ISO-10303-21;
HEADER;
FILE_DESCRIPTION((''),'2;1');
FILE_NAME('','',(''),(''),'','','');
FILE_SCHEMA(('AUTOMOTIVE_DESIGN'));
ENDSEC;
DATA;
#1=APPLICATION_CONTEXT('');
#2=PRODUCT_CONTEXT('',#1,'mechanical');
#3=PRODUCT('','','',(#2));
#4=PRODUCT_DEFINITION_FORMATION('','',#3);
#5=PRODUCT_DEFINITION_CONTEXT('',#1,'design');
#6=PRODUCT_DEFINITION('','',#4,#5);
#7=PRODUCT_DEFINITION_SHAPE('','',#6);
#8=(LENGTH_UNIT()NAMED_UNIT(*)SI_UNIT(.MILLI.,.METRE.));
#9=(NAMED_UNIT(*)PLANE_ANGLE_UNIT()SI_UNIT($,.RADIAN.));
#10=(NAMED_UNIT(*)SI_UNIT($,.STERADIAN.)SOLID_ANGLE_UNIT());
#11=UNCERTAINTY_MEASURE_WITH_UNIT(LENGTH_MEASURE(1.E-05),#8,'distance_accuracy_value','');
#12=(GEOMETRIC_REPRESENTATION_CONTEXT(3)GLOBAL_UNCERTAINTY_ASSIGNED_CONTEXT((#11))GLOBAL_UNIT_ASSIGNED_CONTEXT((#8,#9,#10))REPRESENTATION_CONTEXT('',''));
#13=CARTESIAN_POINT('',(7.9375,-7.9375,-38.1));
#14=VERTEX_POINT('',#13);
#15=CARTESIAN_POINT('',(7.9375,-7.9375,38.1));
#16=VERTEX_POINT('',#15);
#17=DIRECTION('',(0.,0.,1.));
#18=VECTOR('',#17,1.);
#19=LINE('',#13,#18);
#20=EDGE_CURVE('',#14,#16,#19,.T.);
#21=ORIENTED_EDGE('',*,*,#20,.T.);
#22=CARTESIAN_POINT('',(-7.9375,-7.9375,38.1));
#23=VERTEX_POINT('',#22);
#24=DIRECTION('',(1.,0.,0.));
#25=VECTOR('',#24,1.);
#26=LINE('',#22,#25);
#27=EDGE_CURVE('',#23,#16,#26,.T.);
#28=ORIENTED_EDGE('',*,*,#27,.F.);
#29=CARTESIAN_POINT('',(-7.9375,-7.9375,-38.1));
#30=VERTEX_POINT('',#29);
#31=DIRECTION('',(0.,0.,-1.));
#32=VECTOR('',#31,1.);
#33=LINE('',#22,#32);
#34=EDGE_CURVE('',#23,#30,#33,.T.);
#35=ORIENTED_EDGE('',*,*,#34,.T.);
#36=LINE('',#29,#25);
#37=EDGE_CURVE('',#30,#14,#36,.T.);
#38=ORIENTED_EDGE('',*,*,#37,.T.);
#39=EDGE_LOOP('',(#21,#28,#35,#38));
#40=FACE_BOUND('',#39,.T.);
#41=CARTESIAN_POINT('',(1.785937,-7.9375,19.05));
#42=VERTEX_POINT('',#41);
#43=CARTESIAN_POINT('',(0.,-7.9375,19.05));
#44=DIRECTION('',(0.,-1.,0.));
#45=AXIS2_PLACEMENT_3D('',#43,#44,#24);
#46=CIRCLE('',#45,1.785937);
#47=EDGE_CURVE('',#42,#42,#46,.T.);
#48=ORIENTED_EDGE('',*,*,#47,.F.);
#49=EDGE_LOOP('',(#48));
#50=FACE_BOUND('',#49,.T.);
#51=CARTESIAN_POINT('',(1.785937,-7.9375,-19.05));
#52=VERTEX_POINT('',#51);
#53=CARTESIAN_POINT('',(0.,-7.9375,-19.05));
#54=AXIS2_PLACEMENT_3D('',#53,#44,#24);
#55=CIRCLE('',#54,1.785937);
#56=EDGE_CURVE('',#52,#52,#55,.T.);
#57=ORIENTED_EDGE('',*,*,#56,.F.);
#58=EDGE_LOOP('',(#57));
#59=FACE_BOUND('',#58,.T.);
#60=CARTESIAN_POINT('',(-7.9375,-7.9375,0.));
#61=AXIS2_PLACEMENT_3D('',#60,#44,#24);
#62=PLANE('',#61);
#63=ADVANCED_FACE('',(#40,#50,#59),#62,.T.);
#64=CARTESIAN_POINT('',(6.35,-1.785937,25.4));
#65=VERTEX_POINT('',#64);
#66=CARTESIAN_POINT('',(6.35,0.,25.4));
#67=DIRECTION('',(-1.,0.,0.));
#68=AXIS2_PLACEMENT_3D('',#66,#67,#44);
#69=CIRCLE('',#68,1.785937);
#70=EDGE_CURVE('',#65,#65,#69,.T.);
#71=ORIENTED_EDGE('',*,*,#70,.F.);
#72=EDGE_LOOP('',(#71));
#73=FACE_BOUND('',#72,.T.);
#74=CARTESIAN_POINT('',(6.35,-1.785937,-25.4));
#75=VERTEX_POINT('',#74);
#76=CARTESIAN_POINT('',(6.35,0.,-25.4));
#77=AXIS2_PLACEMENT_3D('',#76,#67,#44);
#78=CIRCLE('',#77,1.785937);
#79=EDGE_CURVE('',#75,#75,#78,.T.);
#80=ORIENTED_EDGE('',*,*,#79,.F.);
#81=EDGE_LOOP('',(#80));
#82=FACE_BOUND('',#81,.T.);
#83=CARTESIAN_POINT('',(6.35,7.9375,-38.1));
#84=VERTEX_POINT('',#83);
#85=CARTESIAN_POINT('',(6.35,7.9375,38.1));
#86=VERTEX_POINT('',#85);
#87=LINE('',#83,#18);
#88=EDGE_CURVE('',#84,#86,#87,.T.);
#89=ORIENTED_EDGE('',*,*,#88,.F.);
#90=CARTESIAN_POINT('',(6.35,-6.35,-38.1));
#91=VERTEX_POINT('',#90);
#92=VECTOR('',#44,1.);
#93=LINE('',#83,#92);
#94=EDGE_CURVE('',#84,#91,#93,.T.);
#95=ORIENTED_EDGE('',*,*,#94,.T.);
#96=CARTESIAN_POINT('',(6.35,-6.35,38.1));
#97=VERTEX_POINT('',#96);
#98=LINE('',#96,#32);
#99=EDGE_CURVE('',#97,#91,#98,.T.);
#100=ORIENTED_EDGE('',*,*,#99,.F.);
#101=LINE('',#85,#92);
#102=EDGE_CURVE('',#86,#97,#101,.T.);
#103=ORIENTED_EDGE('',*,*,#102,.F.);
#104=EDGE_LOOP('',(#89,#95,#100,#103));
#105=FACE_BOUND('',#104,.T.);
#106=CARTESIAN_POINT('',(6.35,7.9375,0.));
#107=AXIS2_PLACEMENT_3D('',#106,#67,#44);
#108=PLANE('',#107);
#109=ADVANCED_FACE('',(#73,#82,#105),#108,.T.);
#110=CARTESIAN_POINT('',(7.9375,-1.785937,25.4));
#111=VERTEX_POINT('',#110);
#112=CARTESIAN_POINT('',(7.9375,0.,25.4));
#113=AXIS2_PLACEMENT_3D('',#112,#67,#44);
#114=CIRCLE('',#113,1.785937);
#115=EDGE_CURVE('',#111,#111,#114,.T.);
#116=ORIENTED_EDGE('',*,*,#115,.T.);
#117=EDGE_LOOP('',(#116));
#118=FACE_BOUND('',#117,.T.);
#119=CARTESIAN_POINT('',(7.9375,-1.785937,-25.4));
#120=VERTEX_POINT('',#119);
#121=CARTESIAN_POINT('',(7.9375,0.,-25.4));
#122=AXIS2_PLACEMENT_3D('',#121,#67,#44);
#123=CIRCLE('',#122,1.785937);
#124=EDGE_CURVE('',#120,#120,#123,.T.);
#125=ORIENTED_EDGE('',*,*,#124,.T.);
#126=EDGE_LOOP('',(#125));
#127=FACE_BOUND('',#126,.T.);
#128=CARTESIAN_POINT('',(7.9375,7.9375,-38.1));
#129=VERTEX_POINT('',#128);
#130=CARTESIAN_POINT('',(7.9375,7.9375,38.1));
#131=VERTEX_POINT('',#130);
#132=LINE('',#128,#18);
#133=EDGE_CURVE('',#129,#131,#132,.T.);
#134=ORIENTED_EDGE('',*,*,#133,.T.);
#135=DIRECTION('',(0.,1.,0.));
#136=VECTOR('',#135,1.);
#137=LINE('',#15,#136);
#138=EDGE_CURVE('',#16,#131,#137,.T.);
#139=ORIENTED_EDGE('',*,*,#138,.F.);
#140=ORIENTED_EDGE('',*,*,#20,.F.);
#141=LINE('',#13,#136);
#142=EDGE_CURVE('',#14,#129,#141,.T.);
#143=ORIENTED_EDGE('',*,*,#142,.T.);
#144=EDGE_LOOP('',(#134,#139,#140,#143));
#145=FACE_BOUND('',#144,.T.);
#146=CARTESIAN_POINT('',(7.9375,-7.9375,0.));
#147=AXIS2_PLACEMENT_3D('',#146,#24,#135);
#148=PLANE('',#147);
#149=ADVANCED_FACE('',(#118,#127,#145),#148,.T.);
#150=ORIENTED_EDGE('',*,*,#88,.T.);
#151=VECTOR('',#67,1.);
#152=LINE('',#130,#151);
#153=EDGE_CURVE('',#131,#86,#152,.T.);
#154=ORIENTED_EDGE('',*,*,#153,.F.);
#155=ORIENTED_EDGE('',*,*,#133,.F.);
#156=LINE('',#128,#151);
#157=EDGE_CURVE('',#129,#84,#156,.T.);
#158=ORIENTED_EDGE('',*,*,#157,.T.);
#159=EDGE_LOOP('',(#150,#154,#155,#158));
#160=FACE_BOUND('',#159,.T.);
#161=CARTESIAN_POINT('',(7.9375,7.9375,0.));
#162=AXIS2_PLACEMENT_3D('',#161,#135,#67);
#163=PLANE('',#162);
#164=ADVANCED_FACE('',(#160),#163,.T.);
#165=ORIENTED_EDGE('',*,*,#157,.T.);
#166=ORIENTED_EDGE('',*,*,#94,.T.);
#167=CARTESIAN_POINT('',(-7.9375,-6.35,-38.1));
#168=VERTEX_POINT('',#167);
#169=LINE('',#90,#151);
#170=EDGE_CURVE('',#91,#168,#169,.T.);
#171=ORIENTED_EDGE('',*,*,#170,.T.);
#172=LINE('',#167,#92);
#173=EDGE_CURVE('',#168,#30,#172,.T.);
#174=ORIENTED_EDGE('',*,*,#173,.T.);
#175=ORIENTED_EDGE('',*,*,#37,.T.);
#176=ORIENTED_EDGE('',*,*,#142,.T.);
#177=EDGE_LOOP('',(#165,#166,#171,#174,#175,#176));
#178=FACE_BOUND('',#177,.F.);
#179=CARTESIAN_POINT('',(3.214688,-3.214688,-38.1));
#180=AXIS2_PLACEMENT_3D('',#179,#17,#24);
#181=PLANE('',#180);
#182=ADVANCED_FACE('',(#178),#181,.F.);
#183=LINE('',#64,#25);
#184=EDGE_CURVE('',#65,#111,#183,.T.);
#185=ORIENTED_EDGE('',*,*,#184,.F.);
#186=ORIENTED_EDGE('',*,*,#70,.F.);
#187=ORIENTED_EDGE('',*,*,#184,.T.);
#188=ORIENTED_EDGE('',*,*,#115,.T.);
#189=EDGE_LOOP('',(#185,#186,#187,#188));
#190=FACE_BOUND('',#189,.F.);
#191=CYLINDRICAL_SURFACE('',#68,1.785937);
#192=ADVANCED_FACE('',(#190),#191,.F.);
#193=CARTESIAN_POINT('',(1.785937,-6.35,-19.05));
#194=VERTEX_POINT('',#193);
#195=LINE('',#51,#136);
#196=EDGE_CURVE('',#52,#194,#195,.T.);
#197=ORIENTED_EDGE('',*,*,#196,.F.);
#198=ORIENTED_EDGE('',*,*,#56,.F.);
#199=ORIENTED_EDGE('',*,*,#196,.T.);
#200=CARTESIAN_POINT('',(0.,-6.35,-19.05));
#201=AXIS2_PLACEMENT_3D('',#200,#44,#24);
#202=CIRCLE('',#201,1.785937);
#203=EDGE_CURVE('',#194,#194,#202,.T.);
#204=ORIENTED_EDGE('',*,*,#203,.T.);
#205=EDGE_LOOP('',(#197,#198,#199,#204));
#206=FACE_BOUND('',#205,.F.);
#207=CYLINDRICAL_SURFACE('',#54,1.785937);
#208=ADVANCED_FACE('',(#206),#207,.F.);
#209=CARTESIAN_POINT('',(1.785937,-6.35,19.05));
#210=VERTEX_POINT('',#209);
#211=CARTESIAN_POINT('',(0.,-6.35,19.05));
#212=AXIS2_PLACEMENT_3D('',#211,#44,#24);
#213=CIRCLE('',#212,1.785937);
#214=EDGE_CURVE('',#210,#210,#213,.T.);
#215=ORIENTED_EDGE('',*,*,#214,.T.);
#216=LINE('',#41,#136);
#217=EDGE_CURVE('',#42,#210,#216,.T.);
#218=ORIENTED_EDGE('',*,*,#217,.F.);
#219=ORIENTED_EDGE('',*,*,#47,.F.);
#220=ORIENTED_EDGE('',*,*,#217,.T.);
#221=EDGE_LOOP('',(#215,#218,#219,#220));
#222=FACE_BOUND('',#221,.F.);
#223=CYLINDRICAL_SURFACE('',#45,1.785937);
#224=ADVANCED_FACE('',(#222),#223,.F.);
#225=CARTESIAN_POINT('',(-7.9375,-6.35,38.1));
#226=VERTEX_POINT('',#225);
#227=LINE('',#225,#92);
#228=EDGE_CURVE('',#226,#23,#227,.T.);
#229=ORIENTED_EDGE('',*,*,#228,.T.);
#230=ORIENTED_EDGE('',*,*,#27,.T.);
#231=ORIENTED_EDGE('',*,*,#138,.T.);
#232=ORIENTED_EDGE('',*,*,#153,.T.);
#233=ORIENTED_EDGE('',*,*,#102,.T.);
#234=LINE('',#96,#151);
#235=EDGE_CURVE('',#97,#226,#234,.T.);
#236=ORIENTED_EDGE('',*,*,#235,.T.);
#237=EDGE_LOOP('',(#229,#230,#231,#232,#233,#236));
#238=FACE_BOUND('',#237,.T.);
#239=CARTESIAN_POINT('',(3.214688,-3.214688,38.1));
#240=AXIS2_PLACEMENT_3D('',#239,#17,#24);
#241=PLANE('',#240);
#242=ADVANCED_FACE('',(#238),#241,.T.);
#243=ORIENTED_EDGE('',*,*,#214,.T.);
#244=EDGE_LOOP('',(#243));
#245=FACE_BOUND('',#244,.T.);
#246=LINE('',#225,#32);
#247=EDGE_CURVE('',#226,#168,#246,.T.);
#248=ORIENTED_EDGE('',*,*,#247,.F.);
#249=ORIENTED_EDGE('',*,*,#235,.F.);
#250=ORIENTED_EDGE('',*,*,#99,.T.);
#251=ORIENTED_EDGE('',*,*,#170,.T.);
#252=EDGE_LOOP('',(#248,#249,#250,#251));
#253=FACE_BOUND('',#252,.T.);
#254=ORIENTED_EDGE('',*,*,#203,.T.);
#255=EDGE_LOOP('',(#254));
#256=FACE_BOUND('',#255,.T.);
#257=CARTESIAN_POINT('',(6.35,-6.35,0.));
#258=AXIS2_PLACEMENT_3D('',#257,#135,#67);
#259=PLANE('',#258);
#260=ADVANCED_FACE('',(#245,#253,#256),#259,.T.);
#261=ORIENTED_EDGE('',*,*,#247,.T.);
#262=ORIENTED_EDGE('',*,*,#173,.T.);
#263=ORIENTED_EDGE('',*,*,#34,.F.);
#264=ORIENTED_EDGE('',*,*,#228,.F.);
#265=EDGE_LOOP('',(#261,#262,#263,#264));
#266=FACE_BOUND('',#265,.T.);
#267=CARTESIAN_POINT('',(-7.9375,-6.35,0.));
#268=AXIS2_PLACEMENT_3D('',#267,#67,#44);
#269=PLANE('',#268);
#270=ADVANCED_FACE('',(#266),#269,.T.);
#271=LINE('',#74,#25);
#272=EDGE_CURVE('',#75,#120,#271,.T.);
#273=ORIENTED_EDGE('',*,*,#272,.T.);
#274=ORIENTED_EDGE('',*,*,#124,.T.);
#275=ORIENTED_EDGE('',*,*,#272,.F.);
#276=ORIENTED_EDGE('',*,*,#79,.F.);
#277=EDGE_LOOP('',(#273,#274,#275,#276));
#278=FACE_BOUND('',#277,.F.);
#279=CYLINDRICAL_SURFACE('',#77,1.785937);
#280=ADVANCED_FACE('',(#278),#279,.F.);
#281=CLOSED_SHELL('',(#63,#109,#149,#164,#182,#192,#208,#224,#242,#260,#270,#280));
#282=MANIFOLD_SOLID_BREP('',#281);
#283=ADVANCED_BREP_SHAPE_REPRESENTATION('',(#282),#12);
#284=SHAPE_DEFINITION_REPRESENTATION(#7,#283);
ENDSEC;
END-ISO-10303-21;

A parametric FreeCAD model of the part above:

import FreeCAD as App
import Part
import Sketcher
Q = App.Units.Quantity


def add_polygon(sketch, points):
    """Adds a closed chain of lines whose ends are joined by coincident constraints."""
    first, n = sketch.GeometryCount, len(points)
    for a, b in zip(points, points[1:] + points[:1]):
        sketch.addGeometry(Part.LineSegment(App.Vector(*a, 0), App.Vector(*b, 0)), False)
    for i in range(n):
        sketch.addConstraint(Sketcher.Constraint("Coincident", first + i, 2, first + (i + 1) % n, 1))

doc = App.newDocument("Part")
body = doc.addObject("PartDesign::Body", "Body")

# Sketch on XY plane
sketch1 = body.newObject("Sketcher::SketchObject", "Sketch")
sketch1.AttachmentSupport = (doc.getObject("XY_Plane"), [""])
sketch1.MapMode = "FlatFace"
add_polygon(sketch1, [(-7.9, -7.9), (7.9, -7.9), (7.9, 7.9), (6.3, 7.9), (6.3, -6.3), (-7.9, -6.3)])  # lines 0-5
sketch1.addConstraint(Sketcher.Constraint("Horizontal", 0))
sketch1.addConstraint(Sketcher.Constraint("Vertical", 1))
sketch1.addConstraint(Sketcher.Constraint("Horizontal", 2))
sketch1.addConstraint(Sketcher.Constraint("Vertical", 3))
sketch1.addConstraint(Sketcher.Constraint("Horizontal", 4))
sketch1.addConstraint(Sketcher.Constraint("Vertical", 5))
sketch1.addConstraint(Sketcher.Constraint("Symmetric", 1, 2, 5, 2, -1, 1))
sketch1.addConstraint(Sketcher.Constraint("Equal", 0, 1))
sketch1.addConstraint(Sketcher.Constraint("Equal", 4, 3))
sketch1.addConstraint(Sketcher.Constraint("DistanceX", 0, 1, 0, 2, Q("0.625 in")))
sketch1.addConstraint(Sketcher.Constraint("DistanceX", 2, 2, 2, 1, Q("0.0625 in")))
pad1 = body.newObject("PartDesign::Pad", "Pad")
pad1.Profile = sketch1
pad1.Length = Q("3 in")
pad1.Midplane = True

# Sketch on YZ plane
sketch2 = body.newObject("Sketcher::SketchObject", "Sketch001")
sketch2.AttachmentSupport = (doc.getObject("YZ_Plane"), [""])
sketch2.MapMode = "FlatFace"
sketch2.AttachmentOffset = App.Placement(App.Vector(0, 0, 0.25 * 25.4), App.Rotation())
sketch2.addGeometry(Part.Circle(App.Vector(0, -25.4, 0), App.Vector(0, 0, 1), 1.8), False)
sketch2.addGeometry(Part.Circle(App.Vector(0, 25.4, 0), App.Vector(0, 0, 1), 1.8), False)
sketch2.addConstraint(Sketcher.Constraint("Equal", 0, 1))
sketch2.addConstraint(Sketcher.Constraint("Symmetric", 0, 3, 1, 3, -1, 1))
sketch2.addConstraint(Sketcher.Constraint("PointOnObject", 0, 3, -2))
sketch2.addConstraint(Sketcher.Constraint("Diameter", 0, Q("0.140625 in")))
sketch2.addConstraint(Sketcher.Constraint("DistanceY", 0, 3, -1, 1, Q("1 in")))
pocket1 = body.newObject("PartDesign::Pocket", "Pocket")
pocket1.Profile = sketch2
pocket1.Type = "ThroughAll"
pocket1.Reversed = True

# Sketch on XZ plane
sketch3 = body.newObject("Sketcher::SketchObject", "Sketch002")
sketch3.AttachmentSupport = (doc.getObject("XZ_Plane"), [""])
sketch3.MapMode = "FlatFace"
sketch3.AttachmentOffset = App.Placement(App.Vector(0, 0, 0.3125 * 25.4), App.Rotation())
sketch3.addGeometry(Part.Circle(App.Vector(0, 19.1, 0), App.Vector(0, 0, 1), 1.8), False)
sketch3.addGeometry(Part.Circle(App.Vector(0, -19.1, 0), App.Vector(0, 0, 1), 1.8), False)
sketch3.addConstraint(Sketcher.Constraint("Equal", 0, 1))
sketch3.addConstraint(Sketcher.Constraint("Symmetric", 0, 3, 1, 3, -1, 1))
sketch3.addConstraint(Sketcher.Constraint("PointOnObject", 0, 3, -2))
sketch3.addConstraint(Sketcher.Constraint("Diameter", 0, Q("0.140625 in")))
sketch3.addConstraint(Sketcher.Constraint("DistanceY", 1, 3, 0, 3, Q("1.5 in")))
pocket2 = body.newObject("PartDesign::Pocket", "Pocket001")
pocket2.Profile = sketch3
pocket2.Type = "ThroughAll"

doc.recompute()
